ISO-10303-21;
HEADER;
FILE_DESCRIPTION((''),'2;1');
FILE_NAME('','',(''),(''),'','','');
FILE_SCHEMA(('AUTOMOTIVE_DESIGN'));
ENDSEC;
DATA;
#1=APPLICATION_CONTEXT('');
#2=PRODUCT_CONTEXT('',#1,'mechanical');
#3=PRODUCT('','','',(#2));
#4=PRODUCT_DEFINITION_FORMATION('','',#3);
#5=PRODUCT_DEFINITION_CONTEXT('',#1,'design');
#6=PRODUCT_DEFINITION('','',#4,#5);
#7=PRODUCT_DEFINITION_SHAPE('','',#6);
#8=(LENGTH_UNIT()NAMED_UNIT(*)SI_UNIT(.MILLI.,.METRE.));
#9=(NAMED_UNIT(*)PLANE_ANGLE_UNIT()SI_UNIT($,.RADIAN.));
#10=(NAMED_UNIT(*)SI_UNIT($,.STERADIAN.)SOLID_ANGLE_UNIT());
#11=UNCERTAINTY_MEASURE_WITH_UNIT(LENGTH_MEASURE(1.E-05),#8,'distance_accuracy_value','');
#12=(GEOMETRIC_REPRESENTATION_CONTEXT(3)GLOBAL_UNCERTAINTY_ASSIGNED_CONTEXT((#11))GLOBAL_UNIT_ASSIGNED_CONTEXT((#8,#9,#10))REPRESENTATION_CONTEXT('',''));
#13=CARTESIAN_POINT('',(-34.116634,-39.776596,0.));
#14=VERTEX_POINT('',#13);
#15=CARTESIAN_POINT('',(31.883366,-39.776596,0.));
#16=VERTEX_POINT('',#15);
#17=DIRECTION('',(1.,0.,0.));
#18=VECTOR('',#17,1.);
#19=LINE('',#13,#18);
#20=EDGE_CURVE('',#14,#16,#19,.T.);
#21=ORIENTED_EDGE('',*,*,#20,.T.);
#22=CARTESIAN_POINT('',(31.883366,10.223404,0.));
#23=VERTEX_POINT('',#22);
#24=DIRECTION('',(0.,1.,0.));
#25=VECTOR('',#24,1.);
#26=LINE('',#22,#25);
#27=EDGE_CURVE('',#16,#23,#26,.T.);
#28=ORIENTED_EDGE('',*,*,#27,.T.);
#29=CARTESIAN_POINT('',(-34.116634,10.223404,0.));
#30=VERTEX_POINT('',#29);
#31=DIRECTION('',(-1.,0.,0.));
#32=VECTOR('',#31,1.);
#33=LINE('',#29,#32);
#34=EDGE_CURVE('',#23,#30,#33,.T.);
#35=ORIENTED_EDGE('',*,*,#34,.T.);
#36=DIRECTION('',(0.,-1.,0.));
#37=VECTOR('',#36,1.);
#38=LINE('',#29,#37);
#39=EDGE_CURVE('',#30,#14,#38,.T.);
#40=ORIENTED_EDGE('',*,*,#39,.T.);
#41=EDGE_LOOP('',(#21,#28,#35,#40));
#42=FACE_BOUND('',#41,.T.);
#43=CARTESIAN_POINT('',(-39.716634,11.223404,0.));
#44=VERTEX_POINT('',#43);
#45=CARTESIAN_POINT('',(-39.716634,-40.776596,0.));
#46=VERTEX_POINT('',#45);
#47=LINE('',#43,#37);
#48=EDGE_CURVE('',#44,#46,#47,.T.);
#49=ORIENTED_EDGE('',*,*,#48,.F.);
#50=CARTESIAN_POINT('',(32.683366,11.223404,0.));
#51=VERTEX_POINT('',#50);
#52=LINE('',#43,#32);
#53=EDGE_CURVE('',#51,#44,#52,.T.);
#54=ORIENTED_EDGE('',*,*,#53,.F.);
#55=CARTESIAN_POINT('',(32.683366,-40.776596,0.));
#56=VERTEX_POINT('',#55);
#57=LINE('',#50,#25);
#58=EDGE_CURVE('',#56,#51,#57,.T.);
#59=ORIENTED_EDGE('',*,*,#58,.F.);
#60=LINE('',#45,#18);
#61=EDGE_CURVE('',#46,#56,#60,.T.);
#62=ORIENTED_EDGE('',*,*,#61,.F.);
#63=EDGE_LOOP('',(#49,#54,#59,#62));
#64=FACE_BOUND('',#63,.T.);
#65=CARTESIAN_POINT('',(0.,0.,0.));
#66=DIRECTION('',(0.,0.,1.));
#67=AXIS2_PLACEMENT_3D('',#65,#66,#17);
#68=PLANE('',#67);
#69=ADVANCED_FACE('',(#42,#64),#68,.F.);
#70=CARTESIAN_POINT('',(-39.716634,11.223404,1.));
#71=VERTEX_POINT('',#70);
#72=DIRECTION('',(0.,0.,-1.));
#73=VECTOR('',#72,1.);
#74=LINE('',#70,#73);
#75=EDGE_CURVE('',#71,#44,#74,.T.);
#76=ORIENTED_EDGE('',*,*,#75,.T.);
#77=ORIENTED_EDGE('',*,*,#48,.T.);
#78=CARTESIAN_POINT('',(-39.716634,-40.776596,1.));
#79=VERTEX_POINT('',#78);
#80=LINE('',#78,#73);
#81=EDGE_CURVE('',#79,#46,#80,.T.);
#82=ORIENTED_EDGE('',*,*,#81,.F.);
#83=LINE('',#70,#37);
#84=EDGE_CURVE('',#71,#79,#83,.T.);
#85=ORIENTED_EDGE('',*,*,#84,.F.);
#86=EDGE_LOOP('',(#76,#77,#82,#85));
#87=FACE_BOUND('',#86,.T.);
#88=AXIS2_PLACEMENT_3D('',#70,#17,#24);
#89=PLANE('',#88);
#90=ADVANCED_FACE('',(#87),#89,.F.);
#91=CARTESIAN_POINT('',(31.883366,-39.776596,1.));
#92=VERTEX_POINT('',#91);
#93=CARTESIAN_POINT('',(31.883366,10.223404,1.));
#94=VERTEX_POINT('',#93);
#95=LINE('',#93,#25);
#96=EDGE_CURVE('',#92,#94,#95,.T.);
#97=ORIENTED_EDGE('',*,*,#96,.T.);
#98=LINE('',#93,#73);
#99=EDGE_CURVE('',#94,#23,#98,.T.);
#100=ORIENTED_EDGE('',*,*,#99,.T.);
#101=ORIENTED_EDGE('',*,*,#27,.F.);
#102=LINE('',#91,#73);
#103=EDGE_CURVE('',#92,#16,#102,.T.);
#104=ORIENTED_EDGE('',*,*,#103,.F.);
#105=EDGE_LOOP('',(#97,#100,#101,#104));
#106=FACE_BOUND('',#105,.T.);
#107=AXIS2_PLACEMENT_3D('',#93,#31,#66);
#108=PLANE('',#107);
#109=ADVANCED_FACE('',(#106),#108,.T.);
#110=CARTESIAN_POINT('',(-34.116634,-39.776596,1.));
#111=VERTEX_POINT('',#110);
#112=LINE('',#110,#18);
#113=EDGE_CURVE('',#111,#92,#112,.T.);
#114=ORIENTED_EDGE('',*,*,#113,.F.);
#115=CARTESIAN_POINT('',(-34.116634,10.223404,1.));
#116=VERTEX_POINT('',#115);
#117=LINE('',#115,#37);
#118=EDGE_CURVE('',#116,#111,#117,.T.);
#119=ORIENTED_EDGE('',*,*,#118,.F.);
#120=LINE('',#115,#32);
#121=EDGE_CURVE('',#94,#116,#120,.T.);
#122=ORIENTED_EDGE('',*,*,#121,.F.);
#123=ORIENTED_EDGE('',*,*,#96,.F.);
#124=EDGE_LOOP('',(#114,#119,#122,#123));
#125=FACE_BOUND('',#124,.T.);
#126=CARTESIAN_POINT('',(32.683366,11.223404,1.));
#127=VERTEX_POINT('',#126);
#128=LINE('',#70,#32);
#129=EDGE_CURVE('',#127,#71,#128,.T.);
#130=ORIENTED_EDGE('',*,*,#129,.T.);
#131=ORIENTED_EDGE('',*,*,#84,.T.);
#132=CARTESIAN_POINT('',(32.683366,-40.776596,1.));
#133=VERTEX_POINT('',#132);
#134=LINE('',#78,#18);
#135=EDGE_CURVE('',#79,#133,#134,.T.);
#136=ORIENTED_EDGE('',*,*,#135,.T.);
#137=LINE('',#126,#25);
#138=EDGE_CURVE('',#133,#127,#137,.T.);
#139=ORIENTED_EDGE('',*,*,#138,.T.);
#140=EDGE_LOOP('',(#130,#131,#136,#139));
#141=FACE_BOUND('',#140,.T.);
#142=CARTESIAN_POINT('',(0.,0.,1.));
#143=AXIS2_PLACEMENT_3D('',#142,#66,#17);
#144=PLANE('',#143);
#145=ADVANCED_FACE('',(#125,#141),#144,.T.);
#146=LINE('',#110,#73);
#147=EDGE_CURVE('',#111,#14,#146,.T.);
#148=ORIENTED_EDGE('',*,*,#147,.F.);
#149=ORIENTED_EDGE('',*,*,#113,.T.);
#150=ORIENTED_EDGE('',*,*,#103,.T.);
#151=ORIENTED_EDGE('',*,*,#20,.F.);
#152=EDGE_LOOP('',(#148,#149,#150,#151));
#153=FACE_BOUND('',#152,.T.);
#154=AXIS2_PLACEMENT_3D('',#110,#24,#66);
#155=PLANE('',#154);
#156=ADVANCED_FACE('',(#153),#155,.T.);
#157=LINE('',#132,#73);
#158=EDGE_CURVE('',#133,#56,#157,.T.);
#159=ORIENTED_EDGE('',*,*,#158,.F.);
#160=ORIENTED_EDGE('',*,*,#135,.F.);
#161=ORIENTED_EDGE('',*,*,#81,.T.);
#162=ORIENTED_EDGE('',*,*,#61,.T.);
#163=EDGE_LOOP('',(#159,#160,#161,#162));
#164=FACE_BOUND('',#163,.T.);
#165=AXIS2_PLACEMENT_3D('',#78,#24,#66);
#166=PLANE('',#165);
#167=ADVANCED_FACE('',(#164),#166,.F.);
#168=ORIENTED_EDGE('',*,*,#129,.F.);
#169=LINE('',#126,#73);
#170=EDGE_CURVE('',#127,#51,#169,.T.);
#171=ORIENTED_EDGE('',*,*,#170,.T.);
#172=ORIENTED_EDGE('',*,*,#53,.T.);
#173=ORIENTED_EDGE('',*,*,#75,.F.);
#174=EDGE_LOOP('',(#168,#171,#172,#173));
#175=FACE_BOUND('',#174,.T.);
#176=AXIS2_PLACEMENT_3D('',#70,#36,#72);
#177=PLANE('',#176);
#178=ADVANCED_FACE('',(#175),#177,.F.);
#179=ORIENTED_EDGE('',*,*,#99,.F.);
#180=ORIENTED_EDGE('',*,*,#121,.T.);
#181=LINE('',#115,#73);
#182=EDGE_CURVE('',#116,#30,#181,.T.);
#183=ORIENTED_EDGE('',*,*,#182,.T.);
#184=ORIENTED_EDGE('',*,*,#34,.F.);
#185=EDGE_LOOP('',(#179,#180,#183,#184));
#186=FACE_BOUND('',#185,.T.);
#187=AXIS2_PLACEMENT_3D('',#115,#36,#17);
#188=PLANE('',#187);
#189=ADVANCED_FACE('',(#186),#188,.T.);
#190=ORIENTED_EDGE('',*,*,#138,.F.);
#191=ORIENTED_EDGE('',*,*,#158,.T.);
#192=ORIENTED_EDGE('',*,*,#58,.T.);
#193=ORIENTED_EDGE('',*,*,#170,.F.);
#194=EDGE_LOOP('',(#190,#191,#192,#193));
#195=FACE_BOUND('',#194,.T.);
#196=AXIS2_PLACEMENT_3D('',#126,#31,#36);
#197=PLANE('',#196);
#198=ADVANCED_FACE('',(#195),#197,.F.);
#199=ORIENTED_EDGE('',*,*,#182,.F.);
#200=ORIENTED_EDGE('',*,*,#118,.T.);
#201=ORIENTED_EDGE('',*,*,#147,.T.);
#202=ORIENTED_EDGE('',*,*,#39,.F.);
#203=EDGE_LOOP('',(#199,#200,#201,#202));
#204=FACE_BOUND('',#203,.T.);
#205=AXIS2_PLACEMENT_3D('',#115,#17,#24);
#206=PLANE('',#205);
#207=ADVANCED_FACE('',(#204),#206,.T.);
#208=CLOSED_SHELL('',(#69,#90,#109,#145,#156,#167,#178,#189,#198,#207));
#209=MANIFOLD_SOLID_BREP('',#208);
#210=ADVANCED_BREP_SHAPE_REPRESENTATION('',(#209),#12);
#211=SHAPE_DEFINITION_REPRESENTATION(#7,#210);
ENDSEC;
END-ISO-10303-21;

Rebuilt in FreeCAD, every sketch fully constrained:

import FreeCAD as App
import Part
import Sketcher

doc = App.newDocument("Part")
body = doc.addObject("PartDesign::Body", "Body")

# Sketch on XY plane
sketch1 = doc.addObject("Sketcher::SketchObject", "Sketch")
body.addObject(sketch1)
sketch1.AttachmentSupport = (doc.XY_Plane, [""])
sketch1.MapMode = "FlatFace"
sketch1.addGeometry(Part.LineSegment(App.Vector(-40, 11, 0), App.Vector(-40, -41, 0)), False)
sketch1.addGeometry(Part.LineSegment(App.Vector(-40, -41, 0), App.Vector(33, -41, 0)), False)
sketch1.addGeometry(Part.LineSegment(App.Vector(33, -41, 0), App.Vector(33, 11, 0)), False)
sketch1.addGeometry(Part.LineSegment(App.Vector(33, 11, 0), App.Vector(-40, 11, 0)), False)
sketch1.addGeometry(Part.LineSegment(App.Vector(32, -40, 0), App.Vector(-34, -40, 0)), False)
sketch1.addGeometry(Part.LineSegment(App.Vector(-34, -40, 0), App.Vector(-34, 10, 0)), False)
sketch1.addGeometry(Part.LineSegment(App.Vector(-34, 10, 0), App.Vector(32, 10, 0)), False)
sketch1.addGeometry(Part.LineSegment(App.Vector(32, 10, 0), App.Vector(32, -40, 0)), False)
sketch1.addConstraint(Sketcher.Constraint("Coincident", 0, 2, 1, 1))
sketch1.addConstraint(Sketcher.Constraint("Coincident", 1, 2, 2, 1))
sketch1.addConstraint(Sketcher.Constraint("Coincident", 2, 2, 3, 1))
sketch1.addConstraint(Sketcher.Constraint("Coincident", 3, 2, 0, 1))
sketch1.addConstraint(Sketcher.Constraint("Coincident", 4, 2, 5, 1))
sketch1.addConstraint(Sketcher.Constraint("Coincident", 5, 2, 6, 1))
sketch1.addConstraint(Sketcher.Constraint("Coincident", 6, 2, 7, 1))
sketch1.addConstraint(Sketcher.Constraint("Coincident", 7, 2, 4, 1))
sketch1.addConstraint(Sketcher.Constraint("Vertical", 0))
sketch1.addConstraint(Sketcher.Constraint("Horizontal", 1))
sketch1.addConstraint(Sketcher.Constraint("Vertical", 2))
sketch1.addConstraint(Sketcher.Constraint("Horizontal", 3))
sketch1.addConstraint(Sketcher.Constraint("Horizontal", 4))
sketch1.addConstraint(Sketcher.Constraint("Vertical", 5))
sketch1.addConstraint(Sketcher.Constraint("Horizontal", 6))
sketch1.addConstraint(Sketcher.Constraint("Vertical", 7))
sketch1.addConstraint(Sketcher.Constraint("DistanceX", 4, 2, 4, 1, 66.0))
sketch1.addConstraint(Sketcher.Constraint("DistanceY", 0, 2, 0, 1, 52.0))
sketch1.addConstraint(Sketcher.Constraint("DistanceY", 5, 1, 5, 2, 50.0))
sketch1.addConstraint(Sketcher.Constraint("DistanceX", 1, 1, 1, 2, 72.4))
sketch1.addConstraint(Sketcher.Constraint("DistanceY", 0, 2, 4, 2, 1.0))
sketch1.addConstraint(Sketcher.Constraint("DistanceX", 0, 2, 4, 2, 5.6))
sketch1.addConstraint(Sketcher.Constraint("DistanceX", 0, 2, -1, 1, 39.716634))
sketch1.addConstraint(Sketcher.Constraint("DistanceY", 0, 2, -1, 1, 40.776596))
pad1 = doc.addObject("PartDesign::Pad", "Pad")
body.addObject(pad1)
pad1.Profile = sketch1
pad1.Length = 1

doc.recompute()
